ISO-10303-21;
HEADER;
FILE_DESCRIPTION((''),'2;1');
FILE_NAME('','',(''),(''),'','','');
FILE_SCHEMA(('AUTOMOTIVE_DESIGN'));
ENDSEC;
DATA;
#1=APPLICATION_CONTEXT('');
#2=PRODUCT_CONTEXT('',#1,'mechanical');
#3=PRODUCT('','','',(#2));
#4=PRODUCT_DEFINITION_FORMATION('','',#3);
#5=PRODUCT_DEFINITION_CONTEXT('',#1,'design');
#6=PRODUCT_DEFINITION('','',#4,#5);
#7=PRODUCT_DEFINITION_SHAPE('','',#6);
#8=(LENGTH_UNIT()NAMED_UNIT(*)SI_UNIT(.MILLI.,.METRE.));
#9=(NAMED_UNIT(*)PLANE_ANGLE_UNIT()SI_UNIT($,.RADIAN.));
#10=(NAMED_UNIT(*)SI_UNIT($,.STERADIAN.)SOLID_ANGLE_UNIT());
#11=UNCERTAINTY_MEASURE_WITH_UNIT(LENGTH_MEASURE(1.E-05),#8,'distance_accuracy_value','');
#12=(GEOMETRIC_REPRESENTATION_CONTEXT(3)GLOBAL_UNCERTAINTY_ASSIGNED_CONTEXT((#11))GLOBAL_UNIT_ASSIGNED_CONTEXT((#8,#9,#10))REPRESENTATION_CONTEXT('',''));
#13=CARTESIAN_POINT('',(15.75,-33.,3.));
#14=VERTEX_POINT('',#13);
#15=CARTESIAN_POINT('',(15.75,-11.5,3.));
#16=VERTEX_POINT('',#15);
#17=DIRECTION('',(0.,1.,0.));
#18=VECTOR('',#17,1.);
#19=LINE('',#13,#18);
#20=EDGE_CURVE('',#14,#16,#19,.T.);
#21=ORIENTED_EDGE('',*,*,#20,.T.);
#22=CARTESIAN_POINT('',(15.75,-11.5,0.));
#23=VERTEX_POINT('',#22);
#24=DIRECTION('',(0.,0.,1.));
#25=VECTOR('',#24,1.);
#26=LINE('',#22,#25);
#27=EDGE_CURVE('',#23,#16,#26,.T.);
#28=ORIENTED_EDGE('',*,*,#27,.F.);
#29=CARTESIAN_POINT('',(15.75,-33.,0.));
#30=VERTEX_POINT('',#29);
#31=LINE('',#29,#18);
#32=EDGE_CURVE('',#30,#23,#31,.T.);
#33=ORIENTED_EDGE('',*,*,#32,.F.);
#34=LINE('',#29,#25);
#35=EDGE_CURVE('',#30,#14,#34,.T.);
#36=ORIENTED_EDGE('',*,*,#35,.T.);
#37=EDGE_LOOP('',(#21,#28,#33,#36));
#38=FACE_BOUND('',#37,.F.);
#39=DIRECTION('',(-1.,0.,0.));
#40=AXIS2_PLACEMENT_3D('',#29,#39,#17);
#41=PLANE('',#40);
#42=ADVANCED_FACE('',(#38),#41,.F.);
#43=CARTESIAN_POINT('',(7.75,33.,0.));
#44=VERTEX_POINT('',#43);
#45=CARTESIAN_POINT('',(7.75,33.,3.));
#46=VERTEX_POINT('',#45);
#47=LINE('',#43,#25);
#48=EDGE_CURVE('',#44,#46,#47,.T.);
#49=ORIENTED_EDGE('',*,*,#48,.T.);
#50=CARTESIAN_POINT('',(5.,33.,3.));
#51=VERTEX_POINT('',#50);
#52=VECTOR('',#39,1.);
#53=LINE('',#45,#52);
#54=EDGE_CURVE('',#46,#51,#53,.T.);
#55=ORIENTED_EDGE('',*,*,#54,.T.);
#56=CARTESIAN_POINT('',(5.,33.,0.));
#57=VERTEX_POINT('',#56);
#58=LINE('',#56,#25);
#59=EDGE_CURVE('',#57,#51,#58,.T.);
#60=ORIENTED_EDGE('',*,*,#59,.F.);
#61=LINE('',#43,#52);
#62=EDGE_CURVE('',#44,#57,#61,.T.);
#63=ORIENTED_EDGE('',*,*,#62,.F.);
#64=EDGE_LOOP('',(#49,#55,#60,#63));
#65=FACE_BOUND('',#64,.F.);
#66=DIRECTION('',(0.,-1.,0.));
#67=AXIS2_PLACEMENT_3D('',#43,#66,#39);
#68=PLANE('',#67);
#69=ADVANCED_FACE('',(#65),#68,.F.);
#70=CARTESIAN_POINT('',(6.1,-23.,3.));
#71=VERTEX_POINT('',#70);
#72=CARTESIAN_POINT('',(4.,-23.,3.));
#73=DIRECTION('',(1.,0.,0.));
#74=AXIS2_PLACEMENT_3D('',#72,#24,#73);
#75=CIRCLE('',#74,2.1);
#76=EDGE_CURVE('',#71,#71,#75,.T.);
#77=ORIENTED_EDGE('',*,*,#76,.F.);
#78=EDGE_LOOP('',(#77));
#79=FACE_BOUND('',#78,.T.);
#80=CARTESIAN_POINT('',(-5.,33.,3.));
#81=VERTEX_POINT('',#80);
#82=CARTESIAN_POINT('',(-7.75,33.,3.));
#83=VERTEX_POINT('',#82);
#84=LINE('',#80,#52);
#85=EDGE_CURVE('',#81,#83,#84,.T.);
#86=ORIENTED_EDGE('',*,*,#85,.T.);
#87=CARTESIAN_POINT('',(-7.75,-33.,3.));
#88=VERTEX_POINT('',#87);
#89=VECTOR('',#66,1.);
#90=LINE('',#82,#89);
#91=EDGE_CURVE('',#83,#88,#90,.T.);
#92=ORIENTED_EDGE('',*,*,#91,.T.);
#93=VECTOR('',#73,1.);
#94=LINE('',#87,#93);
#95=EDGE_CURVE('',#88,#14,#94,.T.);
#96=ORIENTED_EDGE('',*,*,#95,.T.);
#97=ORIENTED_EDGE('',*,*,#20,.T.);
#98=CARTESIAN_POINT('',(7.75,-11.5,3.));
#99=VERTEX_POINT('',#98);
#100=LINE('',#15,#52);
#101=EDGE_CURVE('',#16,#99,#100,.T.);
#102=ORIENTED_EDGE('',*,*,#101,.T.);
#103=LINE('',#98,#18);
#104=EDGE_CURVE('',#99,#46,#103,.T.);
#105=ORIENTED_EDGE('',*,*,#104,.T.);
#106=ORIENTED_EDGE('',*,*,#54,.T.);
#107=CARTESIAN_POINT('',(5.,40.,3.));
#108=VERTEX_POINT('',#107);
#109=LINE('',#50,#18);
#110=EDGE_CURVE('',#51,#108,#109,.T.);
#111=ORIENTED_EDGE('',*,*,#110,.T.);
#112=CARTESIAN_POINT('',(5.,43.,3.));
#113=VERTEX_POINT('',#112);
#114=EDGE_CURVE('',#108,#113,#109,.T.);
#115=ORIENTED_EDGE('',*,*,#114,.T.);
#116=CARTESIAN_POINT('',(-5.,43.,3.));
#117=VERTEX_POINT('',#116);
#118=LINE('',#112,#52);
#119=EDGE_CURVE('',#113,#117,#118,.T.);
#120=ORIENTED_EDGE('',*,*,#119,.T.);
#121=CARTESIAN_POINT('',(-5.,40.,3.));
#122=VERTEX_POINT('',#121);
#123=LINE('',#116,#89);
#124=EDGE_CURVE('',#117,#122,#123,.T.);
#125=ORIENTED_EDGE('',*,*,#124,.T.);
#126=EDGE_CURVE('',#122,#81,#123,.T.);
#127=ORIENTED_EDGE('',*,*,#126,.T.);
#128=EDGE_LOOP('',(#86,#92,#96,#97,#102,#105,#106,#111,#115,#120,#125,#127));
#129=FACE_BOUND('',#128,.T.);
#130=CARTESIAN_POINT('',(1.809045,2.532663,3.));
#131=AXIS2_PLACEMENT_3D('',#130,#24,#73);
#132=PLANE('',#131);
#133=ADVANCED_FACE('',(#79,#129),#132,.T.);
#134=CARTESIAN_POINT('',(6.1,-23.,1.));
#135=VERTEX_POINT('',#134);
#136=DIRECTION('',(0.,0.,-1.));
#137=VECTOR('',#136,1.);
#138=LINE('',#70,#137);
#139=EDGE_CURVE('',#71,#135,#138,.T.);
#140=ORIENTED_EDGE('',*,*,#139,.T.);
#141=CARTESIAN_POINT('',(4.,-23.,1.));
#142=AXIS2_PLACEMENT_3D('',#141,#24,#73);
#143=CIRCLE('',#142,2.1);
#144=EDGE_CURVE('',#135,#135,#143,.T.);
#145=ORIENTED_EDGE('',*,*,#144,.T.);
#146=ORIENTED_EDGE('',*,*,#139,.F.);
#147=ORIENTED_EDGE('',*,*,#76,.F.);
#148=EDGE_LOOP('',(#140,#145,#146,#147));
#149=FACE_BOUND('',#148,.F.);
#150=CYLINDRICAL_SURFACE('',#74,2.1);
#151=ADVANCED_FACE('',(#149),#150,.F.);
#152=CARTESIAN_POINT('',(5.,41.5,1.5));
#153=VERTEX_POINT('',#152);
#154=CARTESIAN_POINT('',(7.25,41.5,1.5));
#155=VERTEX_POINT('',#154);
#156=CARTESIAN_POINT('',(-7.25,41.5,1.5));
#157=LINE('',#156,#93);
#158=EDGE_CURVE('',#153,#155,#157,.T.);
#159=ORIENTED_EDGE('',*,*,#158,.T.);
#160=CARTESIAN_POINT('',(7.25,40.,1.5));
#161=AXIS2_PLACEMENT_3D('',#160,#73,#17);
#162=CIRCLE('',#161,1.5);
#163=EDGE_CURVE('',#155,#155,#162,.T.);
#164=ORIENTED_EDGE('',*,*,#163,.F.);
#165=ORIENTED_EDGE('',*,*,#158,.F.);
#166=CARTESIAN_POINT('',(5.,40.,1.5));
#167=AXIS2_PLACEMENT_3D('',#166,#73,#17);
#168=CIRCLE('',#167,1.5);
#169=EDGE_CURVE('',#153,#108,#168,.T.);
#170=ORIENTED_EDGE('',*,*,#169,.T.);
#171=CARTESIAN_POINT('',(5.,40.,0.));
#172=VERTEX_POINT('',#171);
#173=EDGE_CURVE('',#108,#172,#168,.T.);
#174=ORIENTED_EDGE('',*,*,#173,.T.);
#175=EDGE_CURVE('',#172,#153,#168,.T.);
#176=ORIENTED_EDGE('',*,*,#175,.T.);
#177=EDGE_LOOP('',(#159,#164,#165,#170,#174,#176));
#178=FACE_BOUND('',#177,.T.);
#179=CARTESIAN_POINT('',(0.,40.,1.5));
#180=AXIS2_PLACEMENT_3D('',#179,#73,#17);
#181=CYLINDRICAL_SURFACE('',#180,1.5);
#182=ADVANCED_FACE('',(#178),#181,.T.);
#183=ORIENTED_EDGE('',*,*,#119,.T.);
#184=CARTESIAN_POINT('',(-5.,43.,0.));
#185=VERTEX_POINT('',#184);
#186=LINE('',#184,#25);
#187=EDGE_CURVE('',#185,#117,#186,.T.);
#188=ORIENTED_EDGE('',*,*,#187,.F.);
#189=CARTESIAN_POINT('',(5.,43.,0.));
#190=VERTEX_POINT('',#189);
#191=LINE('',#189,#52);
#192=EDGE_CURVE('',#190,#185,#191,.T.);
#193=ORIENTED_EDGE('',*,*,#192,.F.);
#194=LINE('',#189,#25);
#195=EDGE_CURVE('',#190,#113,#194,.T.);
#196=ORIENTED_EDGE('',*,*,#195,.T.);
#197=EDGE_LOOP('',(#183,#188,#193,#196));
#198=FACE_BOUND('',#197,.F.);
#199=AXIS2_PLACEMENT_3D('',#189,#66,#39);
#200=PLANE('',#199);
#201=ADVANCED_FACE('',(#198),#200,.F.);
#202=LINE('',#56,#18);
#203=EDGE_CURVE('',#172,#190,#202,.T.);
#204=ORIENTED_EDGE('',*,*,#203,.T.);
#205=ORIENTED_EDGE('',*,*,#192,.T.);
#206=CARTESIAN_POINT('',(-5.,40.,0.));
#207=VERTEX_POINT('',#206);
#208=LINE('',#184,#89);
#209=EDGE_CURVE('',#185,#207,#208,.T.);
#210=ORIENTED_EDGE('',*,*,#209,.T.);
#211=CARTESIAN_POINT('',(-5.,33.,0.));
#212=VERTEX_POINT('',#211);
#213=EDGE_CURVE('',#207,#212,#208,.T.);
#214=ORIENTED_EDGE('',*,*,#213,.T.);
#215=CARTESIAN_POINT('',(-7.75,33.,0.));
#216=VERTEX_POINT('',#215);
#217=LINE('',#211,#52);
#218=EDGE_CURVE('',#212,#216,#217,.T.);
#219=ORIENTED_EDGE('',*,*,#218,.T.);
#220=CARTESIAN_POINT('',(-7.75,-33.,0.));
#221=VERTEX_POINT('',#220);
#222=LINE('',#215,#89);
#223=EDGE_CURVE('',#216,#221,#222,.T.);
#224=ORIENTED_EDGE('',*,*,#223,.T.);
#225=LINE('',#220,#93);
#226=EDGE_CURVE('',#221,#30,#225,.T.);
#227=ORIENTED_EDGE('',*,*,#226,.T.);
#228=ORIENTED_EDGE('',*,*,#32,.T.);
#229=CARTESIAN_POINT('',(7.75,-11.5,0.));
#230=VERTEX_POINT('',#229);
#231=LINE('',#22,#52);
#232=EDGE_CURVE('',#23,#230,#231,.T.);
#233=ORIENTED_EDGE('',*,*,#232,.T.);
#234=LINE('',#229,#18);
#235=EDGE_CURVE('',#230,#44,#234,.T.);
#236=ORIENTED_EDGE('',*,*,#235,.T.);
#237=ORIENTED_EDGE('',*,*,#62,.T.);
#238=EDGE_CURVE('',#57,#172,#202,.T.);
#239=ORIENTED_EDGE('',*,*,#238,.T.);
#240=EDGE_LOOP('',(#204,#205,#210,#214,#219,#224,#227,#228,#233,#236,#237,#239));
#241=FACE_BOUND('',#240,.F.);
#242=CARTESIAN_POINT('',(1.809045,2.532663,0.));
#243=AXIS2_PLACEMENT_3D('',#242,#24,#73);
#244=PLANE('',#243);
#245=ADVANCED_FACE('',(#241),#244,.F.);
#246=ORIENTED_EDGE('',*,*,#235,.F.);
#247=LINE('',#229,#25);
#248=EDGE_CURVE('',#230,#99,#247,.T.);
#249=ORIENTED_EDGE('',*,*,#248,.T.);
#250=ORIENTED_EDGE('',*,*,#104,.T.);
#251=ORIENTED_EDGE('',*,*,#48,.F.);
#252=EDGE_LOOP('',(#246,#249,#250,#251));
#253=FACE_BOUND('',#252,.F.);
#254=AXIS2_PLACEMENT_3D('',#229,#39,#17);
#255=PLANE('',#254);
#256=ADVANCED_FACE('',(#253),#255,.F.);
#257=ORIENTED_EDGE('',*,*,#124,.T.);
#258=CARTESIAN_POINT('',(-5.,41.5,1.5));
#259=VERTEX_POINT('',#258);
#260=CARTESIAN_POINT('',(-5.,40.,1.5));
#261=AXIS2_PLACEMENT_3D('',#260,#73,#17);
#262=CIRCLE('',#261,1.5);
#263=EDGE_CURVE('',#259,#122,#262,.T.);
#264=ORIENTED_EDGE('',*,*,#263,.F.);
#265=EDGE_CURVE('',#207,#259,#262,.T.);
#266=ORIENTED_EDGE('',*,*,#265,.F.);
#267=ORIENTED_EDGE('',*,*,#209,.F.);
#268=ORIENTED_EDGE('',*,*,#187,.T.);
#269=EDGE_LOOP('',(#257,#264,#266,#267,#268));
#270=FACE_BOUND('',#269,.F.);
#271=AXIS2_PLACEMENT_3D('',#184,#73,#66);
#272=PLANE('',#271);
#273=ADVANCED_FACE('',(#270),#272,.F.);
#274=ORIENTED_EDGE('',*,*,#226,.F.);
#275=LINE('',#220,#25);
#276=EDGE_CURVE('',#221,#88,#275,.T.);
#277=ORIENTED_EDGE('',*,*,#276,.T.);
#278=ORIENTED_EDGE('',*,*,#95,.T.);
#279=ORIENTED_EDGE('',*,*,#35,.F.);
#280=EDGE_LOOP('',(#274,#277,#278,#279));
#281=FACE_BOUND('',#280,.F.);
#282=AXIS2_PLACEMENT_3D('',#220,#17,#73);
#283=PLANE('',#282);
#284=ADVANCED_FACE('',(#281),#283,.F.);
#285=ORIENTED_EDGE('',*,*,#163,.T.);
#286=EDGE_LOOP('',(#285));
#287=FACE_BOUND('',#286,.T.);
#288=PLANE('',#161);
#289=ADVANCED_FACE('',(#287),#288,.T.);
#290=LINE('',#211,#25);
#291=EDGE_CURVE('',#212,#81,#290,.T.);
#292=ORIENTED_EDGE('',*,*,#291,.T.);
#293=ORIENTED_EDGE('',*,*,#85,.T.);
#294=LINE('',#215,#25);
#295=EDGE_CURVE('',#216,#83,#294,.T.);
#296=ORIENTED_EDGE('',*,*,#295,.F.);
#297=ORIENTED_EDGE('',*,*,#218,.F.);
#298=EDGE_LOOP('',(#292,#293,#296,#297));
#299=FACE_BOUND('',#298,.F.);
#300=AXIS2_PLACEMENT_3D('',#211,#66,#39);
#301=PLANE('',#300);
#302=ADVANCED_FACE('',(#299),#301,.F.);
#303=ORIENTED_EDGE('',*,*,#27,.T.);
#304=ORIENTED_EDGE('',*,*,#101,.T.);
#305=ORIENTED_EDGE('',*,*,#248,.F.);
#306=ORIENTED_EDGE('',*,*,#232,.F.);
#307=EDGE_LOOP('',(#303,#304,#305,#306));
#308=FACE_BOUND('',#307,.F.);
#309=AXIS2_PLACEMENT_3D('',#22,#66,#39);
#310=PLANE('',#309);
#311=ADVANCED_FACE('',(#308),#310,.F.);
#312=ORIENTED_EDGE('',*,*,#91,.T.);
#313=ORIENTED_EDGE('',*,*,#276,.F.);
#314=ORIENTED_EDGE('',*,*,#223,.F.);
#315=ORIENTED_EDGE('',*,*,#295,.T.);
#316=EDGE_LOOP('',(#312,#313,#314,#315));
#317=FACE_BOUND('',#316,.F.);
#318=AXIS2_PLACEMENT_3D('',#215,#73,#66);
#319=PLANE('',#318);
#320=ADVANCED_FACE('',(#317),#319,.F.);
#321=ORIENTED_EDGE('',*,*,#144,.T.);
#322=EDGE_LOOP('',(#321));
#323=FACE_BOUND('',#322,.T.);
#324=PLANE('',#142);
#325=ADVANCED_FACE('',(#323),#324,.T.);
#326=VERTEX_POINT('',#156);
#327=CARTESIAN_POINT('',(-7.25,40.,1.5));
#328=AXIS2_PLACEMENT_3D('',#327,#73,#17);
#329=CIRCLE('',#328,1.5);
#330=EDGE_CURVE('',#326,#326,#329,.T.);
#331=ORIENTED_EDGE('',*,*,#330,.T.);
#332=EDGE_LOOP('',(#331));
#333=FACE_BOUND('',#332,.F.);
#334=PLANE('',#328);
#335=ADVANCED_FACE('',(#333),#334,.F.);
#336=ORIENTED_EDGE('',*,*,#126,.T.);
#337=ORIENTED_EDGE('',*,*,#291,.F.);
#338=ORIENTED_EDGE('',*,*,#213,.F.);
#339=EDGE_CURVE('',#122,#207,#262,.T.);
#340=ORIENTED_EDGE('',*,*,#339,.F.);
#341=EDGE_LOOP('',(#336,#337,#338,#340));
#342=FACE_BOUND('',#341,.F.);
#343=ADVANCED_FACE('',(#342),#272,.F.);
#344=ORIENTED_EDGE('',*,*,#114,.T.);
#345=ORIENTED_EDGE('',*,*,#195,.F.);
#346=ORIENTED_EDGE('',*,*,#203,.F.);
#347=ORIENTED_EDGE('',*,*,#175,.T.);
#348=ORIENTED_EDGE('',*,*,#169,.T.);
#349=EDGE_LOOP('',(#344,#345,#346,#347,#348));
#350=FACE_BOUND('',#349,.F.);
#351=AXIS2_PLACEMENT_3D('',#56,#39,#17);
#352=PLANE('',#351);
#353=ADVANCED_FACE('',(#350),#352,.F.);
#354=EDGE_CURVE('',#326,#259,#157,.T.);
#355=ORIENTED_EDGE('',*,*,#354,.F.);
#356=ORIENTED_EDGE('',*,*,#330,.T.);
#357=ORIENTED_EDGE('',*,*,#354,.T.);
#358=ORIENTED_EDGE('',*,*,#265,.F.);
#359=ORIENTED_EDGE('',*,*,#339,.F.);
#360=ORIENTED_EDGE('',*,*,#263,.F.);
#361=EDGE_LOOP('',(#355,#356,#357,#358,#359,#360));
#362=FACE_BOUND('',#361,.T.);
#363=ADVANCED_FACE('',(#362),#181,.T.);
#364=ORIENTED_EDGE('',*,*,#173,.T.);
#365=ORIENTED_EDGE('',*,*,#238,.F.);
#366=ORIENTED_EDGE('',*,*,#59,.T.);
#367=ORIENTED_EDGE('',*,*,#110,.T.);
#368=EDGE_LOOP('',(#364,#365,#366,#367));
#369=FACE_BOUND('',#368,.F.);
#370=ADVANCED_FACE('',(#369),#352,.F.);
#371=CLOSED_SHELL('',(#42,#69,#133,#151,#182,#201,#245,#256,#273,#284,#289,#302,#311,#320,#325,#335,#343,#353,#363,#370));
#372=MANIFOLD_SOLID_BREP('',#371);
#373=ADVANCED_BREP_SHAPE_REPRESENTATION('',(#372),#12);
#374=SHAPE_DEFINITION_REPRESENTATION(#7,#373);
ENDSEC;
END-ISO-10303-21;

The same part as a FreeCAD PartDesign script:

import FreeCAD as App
import Part
import Sketcher
from FreeCAD import Vector

doc = App.newDocument("Part")
body = doc.addObject("PartDesign::Body", "Body")

sketch1 = body.newObject("Sketcher::SketchObject", "Sketch")
sketch1.AttachmentSupport = (doc.getObject("XY_Plane"), [""])
sketch1.MapMode = "FlatFace"
sketch1.addGeometry([
    Part.LineSegment(Vector(-7.8, 33, 0), Vector(-7.8, -33, 0)),
    Part.LineSegment(Vector(-7.8, -33, 0), Vector(15.8, -33, 0)),
    Part.LineSegment(Vector(15.8, -33, 0), Vector(15.8, -11.5, 0)),
    Part.LineSegment(Vector(15.8, -11.5, 0), Vector(7.8, -11.5, 0)),
    Part.LineSegment(Vector(7.8, -11.5, 0), Vector(7.8, 33, 0)),
    Part.LineSegment(Vector(7.8, 33, 0), Vector(5, 33, 0)),
    Part.LineSegment(Vector(5, 33, 0), Vector(5, 43, 0)),
    Part.LineSegment(Vector(5, 43, 0), Vector(-5, 43, 0)),
    Part.LineSegment(Vector(-5, 43, 0), Vector(-5, 33, 0)),
    Part.LineSegment(Vector(-5, 33, 0), Vector(-7.8, 33, 0)),
], False)
sketch1.addConstraint([
    Sketcher.Constraint("Coincident", 0, 2, 1, 1),
    Sketcher.Constraint("Coincident", 1, 2, 2, 1),
    Sketcher.Constraint("Coincident", 2, 2, 3, 1),
    Sketcher.Constraint("Coincident", 3, 2, 4, 1),
    Sketcher.Constraint("Coincident", 4, 2, 5, 1),
    Sketcher.Constraint("Coincident", 5, 2, 6, 1),
    Sketcher.Constraint("Coincident", 6, 2, 7, 1),
    Sketcher.Constraint("Coincident", 7, 2, 8, 1),
    Sketcher.Constraint("Coincident", 8, 2, 9, 1),
    Sketcher.Constraint("Coincident", 9, 2, 0, 1),
    Sketcher.Constraint("Vertical", 0),
    Sketcher.Constraint("Horizontal", 1),
    Sketcher.Constraint("Vertical", 2),
    Sketcher.Constraint("Horizontal", 3),
    Sketcher.Constraint("Vertical", 4),
    Sketcher.Constraint("Horizontal", 5),
    Sketcher.Constraint("Vertical", 6),
    Sketcher.Constraint("Horizontal", 7),
    Sketcher.Constraint("Vertical", 8),
    Sketcher.Constraint("Horizontal", 9),
    Sketcher.Constraint("Symmetric", 0, 2, 4, 2, -1, 1),
    Sketcher.Constraint("Symmetric", 5, 2, 8, 2, -2),
    Sketcher.Constraint("Equal", 7, 6),
    Sketcher.Constraint("DistanceX", 3, 2, 3, 1, 8.0),
    Sketcher.Constraint("DistanceX", 7, 2, 7, 1, 10.0),
    Sketcher.Constraint("DistanceY", 0, 2, 0, 1, 66.0),
    Sketcher.Constraint("DistanceX", 1, 1, 1, 2, 23.5),
    Sketcher.Constraint("DistanceY", 2, 1, 2, 2, 21.5),
])
pad1 = body.newObject("PartDesign::Pad", "Pad")
pad1.Profile = sketch1
pad1.Length = 3

sketch2 = body.newObject("Sketcher::SketchObject", "Sketch001")
sketch2.AttachmentSupport = (doc.getObject("YZ_Plane"), [""])
sketch2.MapMode = "FlatFace"
sketch2.addGeometry(Part.Circle(Vector(40, 1.5, 0), Vector(0, 0, 1), 1.5), False)
sketch2.addConstraint([
    Sketcher.Constraint("Diameter", 0, 3.0),
    Sketcher.Constraint("DistanceX", -1, 1, 0, 3, 40.0),
    Sketcher.Constraint("DistanceY", -1, 1, 0, 3, 1.5),
])
pad2 = body.newObject("PartDesign::Pad", "Pad001")
pad2.Profile = sketch2
pad2.Length = 14.5
pad2.Midplane = True

sketch3 = body.newObject("Sketcher::SketchObject", "Sketch002")
sketch3.AttachmentSupport = (doc.getObject("XY_Plane"), [""])
sketch3.MapMode = "FlatFace"
sketch3.AttachmentOffset = App.Placement(Vector(0, 0, 3), App.Rotation())
sketch3.addGeometry(Part.Circle(Vector(4, -23, 0), Vector(0, 0, 1), 2.1), False)
sketch3.addConstraint([
    Sketcher.Constraint("Diameter", 0, 4.2),
    Sketcher.Constraint("DistanceX", -1, 1, 0, 3, 4.0),
    Sketcher.Constraint("DistanceY", 0, 3, -1, 1, 23.0),
])
pocket1 = body.newObject("PartDesign::Pocket", "Pocket")
pocket1.Profile = sketch3
pocket1.Length = 2

doc.recompute()
